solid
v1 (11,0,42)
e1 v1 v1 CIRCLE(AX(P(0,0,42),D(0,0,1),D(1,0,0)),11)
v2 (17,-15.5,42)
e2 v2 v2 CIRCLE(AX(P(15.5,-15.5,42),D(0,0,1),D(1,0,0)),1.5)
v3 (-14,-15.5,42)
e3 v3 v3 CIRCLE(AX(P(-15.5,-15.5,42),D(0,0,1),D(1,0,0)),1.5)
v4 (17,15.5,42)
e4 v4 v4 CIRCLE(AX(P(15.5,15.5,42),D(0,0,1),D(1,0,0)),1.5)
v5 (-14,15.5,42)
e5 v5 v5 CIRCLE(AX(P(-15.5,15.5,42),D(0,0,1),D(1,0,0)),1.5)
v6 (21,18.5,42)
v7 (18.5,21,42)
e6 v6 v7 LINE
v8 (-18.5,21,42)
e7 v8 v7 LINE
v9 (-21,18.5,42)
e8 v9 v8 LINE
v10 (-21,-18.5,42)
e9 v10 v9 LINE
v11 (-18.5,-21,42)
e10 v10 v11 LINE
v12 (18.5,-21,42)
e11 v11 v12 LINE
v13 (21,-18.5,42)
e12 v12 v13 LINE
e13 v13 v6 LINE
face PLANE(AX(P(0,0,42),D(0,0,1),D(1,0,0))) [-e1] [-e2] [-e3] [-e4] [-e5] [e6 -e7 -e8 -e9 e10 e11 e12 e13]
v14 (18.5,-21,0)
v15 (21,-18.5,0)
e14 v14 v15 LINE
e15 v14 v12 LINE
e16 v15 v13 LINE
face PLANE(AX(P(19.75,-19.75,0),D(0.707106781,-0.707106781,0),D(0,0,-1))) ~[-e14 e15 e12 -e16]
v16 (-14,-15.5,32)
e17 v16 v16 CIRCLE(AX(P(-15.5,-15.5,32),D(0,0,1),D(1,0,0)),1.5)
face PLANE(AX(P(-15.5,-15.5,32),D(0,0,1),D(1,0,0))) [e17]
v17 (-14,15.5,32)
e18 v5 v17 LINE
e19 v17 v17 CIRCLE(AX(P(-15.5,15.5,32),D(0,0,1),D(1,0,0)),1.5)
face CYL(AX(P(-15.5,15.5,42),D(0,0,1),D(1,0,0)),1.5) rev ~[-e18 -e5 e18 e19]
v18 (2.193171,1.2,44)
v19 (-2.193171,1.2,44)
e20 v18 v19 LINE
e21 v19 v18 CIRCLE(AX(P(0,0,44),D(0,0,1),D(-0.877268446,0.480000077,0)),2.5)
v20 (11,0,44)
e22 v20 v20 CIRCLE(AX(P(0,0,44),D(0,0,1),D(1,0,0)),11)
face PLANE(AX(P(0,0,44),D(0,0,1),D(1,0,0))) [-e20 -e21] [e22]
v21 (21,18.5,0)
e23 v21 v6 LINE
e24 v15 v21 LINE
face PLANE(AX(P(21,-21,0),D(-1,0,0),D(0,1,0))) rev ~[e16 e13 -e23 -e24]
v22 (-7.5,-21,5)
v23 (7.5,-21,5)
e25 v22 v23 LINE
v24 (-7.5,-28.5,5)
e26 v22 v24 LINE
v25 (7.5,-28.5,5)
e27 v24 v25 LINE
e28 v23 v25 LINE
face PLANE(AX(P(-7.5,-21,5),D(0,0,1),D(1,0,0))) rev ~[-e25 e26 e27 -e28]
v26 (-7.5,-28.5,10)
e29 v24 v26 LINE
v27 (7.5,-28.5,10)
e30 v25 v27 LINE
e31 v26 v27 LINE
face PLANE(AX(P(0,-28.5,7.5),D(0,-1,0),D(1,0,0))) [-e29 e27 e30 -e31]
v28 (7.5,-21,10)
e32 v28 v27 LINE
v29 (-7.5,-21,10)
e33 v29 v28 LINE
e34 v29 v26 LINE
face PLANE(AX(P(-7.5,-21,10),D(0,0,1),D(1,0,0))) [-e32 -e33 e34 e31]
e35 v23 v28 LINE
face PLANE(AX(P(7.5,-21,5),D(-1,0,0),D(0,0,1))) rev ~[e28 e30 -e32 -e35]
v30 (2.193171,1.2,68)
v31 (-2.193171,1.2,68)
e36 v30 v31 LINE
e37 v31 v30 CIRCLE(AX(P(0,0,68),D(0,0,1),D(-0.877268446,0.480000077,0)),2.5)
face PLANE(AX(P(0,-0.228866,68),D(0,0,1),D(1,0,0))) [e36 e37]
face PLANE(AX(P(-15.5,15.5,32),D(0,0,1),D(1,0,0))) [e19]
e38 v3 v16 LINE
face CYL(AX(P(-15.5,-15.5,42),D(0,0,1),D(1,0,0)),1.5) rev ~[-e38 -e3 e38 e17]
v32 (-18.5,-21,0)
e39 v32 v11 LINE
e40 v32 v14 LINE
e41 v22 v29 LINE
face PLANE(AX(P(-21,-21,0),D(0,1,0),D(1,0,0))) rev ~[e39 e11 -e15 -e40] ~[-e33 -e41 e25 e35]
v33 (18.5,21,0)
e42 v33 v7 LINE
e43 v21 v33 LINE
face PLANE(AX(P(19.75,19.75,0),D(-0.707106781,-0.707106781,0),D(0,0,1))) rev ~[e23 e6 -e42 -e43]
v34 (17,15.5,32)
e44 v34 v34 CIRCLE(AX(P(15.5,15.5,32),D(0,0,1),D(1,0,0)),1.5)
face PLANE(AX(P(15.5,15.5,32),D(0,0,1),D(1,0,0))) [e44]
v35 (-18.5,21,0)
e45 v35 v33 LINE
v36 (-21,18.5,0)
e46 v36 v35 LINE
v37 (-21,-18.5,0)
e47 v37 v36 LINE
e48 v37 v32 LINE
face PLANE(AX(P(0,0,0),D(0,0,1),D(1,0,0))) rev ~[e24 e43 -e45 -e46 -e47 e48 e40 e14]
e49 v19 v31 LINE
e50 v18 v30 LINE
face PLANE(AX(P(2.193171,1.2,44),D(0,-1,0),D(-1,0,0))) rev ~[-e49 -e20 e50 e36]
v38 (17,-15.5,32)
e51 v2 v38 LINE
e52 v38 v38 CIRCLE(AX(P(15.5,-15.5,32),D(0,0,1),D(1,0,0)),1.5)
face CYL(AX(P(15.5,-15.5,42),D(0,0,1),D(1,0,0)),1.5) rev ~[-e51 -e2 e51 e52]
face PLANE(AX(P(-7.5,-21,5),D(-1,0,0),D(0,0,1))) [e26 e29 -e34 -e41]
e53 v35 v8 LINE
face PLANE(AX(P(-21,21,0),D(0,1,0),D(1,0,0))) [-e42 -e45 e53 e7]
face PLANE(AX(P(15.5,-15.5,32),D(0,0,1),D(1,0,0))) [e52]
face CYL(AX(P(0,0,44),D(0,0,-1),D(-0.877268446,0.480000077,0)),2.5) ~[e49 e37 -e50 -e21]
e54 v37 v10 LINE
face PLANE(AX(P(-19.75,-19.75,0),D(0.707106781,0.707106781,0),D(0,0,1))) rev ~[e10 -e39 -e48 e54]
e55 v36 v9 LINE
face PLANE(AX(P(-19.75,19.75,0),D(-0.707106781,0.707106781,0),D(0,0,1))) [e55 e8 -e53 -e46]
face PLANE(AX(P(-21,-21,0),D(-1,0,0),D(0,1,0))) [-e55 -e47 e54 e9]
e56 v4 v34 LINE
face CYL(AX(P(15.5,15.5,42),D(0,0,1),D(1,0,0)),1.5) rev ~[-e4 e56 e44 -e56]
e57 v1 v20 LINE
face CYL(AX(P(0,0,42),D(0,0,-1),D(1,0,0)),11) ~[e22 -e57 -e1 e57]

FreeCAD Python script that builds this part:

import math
import FreeCAD as App
import Part
import Sketcher

V = App.Vector
Q = App.Units.Quantity


def edges_at(feature, points):
    """Names of the edges that pass closest to the given points."""
    edges = feature.Shape.Edges
    near = lambda p: min(range(len(edges)), key=lambda i: edges[i].distToShape(Part.Vertex(*p))[0])
    return sorted({f"Edge{near(p) + 1}" for p in points})

doc = App.newDocument("Part")
body = doc.addObject("PartDesign::Body", "Body")

# Sketch on XY plane
sketch1 = body.newObject("Sketcher::SketchObject", "Sketch")
sketch1.AttachmentSupport = (doc.getObject("XY_Plane"), [""])
sketch1.MapMode = "FlatFace"
sketch1.addGeometry([
    Part.LineSegment(V(-21, 21, 0), V(-21, -21, 0)),
    Part.LineSegment(V(-21, -21, 0), V(21, -21, 0)),
    Part.LineSegment(V(21, -21, 0), V(21, 21, 0)),
    Part.LineSegment(V(21, 21, 0), V(-21, 21, 0)),
], False)
sketch1.addConstraint([
    Sketcher.Constraint("Coincident", 0, 2, 1, 1),
    Sketcher.Constraint("Coincident", 1, 2, 2, 1),
    Sketcher.Constraint("Coincident", 2, 2, 3, 1),
    Sketcher.Constraint("Coincident", 3, 2, 0, 1),
    Sketcher.Constraint("Vertical", 0),
    Sketcher.Constraint("Horizontal", 1),
    Sketcher.Constraint("Vertical", 2),
    Sketcher.Constraint("Horizontal", 3),
    Sketcher.Constraint("Symmetric", 0, 2, 2, 2, -1, 1),
    Sketcher.Constraint("Equal", 3, 0),
    Sketcher.Constraint("DistanceX", 1, 1, 1, 2, Q("42 mm")),
])
pad1 = body.newObject("PartDesign::Pad", "Pad")
pad1.Profile = sketch1
pad1.Length = 42
doc.recompute()

chamfer = body.newObject("PartDesign::Chamfer", "Chamfer")
chamfer.Base = (pad1, edges_at(pad1, [
    (-21, -21, 21),
    (21, -21, 21),
    (21, 21, 21),
    (-21, 21, 21),
]))
chamfer.Size = 2.5

# Sketch on XY plane
sketch2 = body.newObject("Sketcher::SketchObject", "Sketch001")
sketch2.AttachmentSupport = (doc.getObject("XY_Plane"), [""])
sketch2.MapMode = "FlatFace"
sketch2.AttachmentOffset = App.Placement(V(0, 0, 42), App.Rotation())
sketch2.addGeometry([
    Part.Circle(V(-15.5, 15.5, 0), V(0, 0, 1), 1.5),
    Part.Circle(V(15.5, 15.5, 0), V(0, 0, 1), 1.5),
    Part.Circle(V(15.5, -15.5, 0), V(0, 0, 1), 1.5),
    Part.Circle(V(-15.5, -15.5, 0), V(0, 0, 1), 1.5),
], False)
sketch2.addConstraint([
    Sketcher.Constraint("Equal", 0, 1),
    Sketcher.Constraint("Equal", 1, 2),
    Sketcher.Constraint("Equal", 2, 3),
    Sketcher.Constraint("Symmetric", 0, 3, 2, 3, -1, 1),
    Sketcher.Constraint("Symmetric", 1, 3, 3, 3, -1, 1),
    Sketcher.Constraint("Symmetric", 0, 3, 1, 3, -2),
    Sketcher.Constraint("Diameter", 0, Q("3 mm")),
    Sketcher.Constraint("DistanceX", 0, 3, 1, 3, Q("31 mm")),
    Sketcher.Constraint("DistanceY", 2, 3, 1, 3, Q("31 mm")),
])
pocket1 = body.newObject("PartDesign::Pocket", "Pocket")
pocket1.Profile = sketch2
pocket1.Length = 10

# Sketch on XY plane
sketch3 = body.newObject("Sketcher::SketchObject", "Sketch002")
sketch3.AttachmentSupport = (doc.getObject("XY_Plane"), [""])
sketch3.MapMode = "FlatFace"
sketch3.AttachmentOffset = App.Placement(V(0, 0, 42), App.Rotation())
sketch3.addGeometry(Part.Circle(V(0, 0, 0), V(0, 0, 1), 11), False)
sketch3.addConstraint([
    Sketcher.Constraint("Coincident", 0, 3, -1, 1),
    Sketcher.Constraint("Diameter", 0, Q("22 mm")),
])
pad2 = body.newObject("PartDesign::Pad", "Pad001")
pad2.Profile = sketch3
pad2.Length = 2

# Sketch on XY plane
sketch4 = body.newObject("Sketcher::SketchObject", "Sketch003")
sketch4.AttachmentSupport = (doc.getObject("XY_Plane"), [""])
sketch4.MapMode = "FlatFace"
sketch4.AttachmentOffset = App.Placement(V(0, 0, 44), App.Rotation())
sketch4.addGeometry([
    Part.LineSegment(V(2.193171, 1.2, 0), V(-2.193171, 1.2, 0)),
    Part.ArcOfCircle(Part.Circle(V(0, 0, 0), V(0, 0, 1), 2.5), math.radians(151.314593), math.radians(388.685407)),
], False)
sketch4.addConstraint([
    Sketcher.Constraint("Coincident", 0, 1, 1, 2),
    Sketcher.Constraint("Coincident", 1, 1, 0, 2),
    Sketcher.Constraint("Horizontal", 0),
    Sketcher.Constraint("Coincident", 1, 3, -1, 1),
    Sketcher.Constraint("Radius", 1, Q("2.5 mm")),
    Sketcher.Constraint("DistanceY", -1, 1, 0, 1, Q("1.2 mm")),
])
pad3 = body.newObject("PartDesign::Pad", "Pad002")
pad3.Profile = sketch4
pad3.Length = 24

# Sketch on XZ plane
sketch5 = body.newObject("Sketcher::SketchObject", "Sketch004")
sketch5.AttachmentSupport = (doc.getObject("XZ_Plane"), [""])
sketch5.MapMode = "FlatFace"
sketch5.AttachmentOffset = App.Placement(V(0, 0, 21), App.Rotation())
sketch5.addGeometry([
    Part.LineSegment(V(-7.5, 10, 0), V(-7.5, 5, 0)),
    Part.LineSegment(V(-7.5, 5, 0), V(7.5, 5, 0)),
    Part.LineSegment(V(7.5, 5, 0), V(7.5, 10, 0)),
    Part.LineSegment(V(7.5, 10, 0), V(-7.5, 10, 0)),
], False)
sketch5.addConstraint([
    Sketcher.Constraint("Coincident", 0, 2, 1, 1),
    Sketcher.Constraint("Coincident", 1, 2, 2, 1),
    Sketcher.Constraint("Coincident", 2, 2, 3, 1),
    Sketcher.Constraint("Coincident", 3, 2, 0, 1),
    Sketcher.Constraint("Vertical", 0),
    Sketcher.Constraint("Horizontal", 1),
    Sketcher.Constraint("Vertical", 2),
    Sketcher.Constraint("Horizontal", 3),
    Sketcher.Constraint("DistanceX", 1, 1, 1, 2, Q("15 mm")),
    Sketcher.Constraint("DistanceY", 0, 2, 0, 1, Q("5 mm")),
    Sketcher.Constraint("DistanceY", -1, 1, 0, 2, Q("5 mm")),
    Sketcher.Constraint("DistanceX", 0, 2, -1, 1, Q("7.5 mm")),
])
pad4 = body.newObject("PartDesign::Pad", "Pad003")
pad4.Profile = sketch5
pad4.Length = 7.5

doc.recompute()
